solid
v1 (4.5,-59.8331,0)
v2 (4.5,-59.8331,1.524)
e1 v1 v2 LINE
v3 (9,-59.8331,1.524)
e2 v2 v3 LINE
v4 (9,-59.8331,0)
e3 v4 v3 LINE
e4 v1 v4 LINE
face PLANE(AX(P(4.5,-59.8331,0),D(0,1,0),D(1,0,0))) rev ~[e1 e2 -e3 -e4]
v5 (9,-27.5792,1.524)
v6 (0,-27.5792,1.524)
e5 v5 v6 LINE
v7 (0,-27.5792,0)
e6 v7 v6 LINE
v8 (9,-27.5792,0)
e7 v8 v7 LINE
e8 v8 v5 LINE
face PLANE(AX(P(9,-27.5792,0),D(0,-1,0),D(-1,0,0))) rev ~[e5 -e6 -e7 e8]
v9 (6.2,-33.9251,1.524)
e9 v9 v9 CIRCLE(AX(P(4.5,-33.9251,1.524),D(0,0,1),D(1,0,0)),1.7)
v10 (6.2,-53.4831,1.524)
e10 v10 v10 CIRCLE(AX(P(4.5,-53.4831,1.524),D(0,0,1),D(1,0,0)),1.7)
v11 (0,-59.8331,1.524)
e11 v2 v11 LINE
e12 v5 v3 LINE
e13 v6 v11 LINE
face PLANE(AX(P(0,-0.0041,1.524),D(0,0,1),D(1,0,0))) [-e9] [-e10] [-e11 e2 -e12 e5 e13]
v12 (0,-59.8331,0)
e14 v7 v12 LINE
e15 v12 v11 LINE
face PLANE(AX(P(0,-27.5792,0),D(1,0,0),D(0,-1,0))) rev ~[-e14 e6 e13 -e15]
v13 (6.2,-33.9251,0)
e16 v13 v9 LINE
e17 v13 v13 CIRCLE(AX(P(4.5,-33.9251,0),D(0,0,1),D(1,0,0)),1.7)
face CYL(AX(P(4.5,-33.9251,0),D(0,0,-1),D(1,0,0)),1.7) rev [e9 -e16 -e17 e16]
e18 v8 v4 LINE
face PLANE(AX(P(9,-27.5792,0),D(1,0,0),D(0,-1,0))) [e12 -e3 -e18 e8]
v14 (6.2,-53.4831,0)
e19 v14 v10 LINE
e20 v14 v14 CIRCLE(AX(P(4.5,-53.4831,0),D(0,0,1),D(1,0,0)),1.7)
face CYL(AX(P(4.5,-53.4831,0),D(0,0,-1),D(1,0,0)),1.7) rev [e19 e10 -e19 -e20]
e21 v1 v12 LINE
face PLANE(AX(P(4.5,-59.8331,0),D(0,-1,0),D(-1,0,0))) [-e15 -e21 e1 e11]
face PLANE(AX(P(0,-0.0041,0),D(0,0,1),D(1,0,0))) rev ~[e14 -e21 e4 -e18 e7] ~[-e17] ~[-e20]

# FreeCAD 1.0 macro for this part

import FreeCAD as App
import Part
import Sketcher

V = App.Vector
Q = App.Units.Quantity

doc = App.newDocument("Part")
body = doc.addObject("PartDesign::Body", "Body")

# Sketch on XY plane
sketch1 = body.newObject("Sketcher::SketchObject", "Sketch")
sketch1.AttachmentSupport = (doc.getObject("XY_Plane"), [""])
sketch1.MapMode = "FlatFace"
sketch1.addGeometry(Part.LineSegment(V(9, -59.8331, 0), V(9, -27.5792, 0)), False)
sketch1.addGeometry(Part.LineSegment(V(9, -27.5792, 0), V(0, -27.5792, 0)), False)
sketch1.addGeometry(Part.LineSegment(V(0, -27.5792, 0), V(0, -59.8331, 0)), False)
sketch1.addGeometry(Part.LineSegment(V(0, -59.8331, 0), V(9, -59.8331, 0)), False)
sketch1.addGeometry(Part.Circle(V(4.5, -53.4831, 0), V(0, 0, 1), 1.7), False)
sketch1.addGeometry(Part.Circle(V(4.5, -33.9251, 0), V(0, 0, 1), 1.7), False)
sketch1.addConstraint(Sketcher.Constraint("Coincident", 0, 2, 1, 1))
sketch1.addConstraint(Sketcher.Constraint("Coincident", 1, 2, 2, 1))
sketch1.addConstraint(Sketcher.Constraint("Coincident", 2, 2, 3, 1))
sketch1.addConstraint(Sketcher.Constraint("Coincident", 3, 2, 0, 1))
sketch1.addConstraint(Sketcher.Constraint("Vertical", 0))
sketch1.addConstraint(Sketcher.Constraint("Horizontal", 1))
sketch1.addConstraint(Sketcher.Constraint("Vertical", 2))
sketch1.addConstraint(Sketcher.Constraint("Horizontal", 3))
sketch1.addConstraint(Sketcher.Constraint("Equal", 4, 5))
sketch1.addConstraint(Sketcher.Constraint("PointOnObject", 1, 2, -2))
sketch1.addConstraint(Sketcher.Constraint("Vertical", 4, 3, 5, 3))
sketch1.addConstraint(Sketcher.Constraint("Diameter", 4, Q("3.4 mm")))
sketch1.addConstraint(Sketcher.Constraint("DistanceX", 1, 2, 1, 1, Q("9 mm")))
sketch1.addConstraint(Sketcher.Constraint("DistanceY", 2, 2, 4, 3, Q("6.35 mm")))
sketch1.addConstraint(Sketcher.Constraint("DistanceX", -1, 1, 4, 3, Q("4.5 mm")))
sketch1.addConstraint(Sketcher.Constraint("DistanceY", 0, 1, 0, 2, Q("32.254 mm")))
sketch1.addConstraint(Sketcher.Constraint("DistanceY", 4, 3, -1, 1, Q("53.483 mm")))
sketch1.addConstraint(Sketcher.Constraint("DistanceY", 5, 3, -1, 1, Q("33.925 mm")))
pad1 = body.newObject("PartDesign::Pad", "Pad")
pad1.Profile = sketch1
pad1.Length = 1.524

doc.recompute()
